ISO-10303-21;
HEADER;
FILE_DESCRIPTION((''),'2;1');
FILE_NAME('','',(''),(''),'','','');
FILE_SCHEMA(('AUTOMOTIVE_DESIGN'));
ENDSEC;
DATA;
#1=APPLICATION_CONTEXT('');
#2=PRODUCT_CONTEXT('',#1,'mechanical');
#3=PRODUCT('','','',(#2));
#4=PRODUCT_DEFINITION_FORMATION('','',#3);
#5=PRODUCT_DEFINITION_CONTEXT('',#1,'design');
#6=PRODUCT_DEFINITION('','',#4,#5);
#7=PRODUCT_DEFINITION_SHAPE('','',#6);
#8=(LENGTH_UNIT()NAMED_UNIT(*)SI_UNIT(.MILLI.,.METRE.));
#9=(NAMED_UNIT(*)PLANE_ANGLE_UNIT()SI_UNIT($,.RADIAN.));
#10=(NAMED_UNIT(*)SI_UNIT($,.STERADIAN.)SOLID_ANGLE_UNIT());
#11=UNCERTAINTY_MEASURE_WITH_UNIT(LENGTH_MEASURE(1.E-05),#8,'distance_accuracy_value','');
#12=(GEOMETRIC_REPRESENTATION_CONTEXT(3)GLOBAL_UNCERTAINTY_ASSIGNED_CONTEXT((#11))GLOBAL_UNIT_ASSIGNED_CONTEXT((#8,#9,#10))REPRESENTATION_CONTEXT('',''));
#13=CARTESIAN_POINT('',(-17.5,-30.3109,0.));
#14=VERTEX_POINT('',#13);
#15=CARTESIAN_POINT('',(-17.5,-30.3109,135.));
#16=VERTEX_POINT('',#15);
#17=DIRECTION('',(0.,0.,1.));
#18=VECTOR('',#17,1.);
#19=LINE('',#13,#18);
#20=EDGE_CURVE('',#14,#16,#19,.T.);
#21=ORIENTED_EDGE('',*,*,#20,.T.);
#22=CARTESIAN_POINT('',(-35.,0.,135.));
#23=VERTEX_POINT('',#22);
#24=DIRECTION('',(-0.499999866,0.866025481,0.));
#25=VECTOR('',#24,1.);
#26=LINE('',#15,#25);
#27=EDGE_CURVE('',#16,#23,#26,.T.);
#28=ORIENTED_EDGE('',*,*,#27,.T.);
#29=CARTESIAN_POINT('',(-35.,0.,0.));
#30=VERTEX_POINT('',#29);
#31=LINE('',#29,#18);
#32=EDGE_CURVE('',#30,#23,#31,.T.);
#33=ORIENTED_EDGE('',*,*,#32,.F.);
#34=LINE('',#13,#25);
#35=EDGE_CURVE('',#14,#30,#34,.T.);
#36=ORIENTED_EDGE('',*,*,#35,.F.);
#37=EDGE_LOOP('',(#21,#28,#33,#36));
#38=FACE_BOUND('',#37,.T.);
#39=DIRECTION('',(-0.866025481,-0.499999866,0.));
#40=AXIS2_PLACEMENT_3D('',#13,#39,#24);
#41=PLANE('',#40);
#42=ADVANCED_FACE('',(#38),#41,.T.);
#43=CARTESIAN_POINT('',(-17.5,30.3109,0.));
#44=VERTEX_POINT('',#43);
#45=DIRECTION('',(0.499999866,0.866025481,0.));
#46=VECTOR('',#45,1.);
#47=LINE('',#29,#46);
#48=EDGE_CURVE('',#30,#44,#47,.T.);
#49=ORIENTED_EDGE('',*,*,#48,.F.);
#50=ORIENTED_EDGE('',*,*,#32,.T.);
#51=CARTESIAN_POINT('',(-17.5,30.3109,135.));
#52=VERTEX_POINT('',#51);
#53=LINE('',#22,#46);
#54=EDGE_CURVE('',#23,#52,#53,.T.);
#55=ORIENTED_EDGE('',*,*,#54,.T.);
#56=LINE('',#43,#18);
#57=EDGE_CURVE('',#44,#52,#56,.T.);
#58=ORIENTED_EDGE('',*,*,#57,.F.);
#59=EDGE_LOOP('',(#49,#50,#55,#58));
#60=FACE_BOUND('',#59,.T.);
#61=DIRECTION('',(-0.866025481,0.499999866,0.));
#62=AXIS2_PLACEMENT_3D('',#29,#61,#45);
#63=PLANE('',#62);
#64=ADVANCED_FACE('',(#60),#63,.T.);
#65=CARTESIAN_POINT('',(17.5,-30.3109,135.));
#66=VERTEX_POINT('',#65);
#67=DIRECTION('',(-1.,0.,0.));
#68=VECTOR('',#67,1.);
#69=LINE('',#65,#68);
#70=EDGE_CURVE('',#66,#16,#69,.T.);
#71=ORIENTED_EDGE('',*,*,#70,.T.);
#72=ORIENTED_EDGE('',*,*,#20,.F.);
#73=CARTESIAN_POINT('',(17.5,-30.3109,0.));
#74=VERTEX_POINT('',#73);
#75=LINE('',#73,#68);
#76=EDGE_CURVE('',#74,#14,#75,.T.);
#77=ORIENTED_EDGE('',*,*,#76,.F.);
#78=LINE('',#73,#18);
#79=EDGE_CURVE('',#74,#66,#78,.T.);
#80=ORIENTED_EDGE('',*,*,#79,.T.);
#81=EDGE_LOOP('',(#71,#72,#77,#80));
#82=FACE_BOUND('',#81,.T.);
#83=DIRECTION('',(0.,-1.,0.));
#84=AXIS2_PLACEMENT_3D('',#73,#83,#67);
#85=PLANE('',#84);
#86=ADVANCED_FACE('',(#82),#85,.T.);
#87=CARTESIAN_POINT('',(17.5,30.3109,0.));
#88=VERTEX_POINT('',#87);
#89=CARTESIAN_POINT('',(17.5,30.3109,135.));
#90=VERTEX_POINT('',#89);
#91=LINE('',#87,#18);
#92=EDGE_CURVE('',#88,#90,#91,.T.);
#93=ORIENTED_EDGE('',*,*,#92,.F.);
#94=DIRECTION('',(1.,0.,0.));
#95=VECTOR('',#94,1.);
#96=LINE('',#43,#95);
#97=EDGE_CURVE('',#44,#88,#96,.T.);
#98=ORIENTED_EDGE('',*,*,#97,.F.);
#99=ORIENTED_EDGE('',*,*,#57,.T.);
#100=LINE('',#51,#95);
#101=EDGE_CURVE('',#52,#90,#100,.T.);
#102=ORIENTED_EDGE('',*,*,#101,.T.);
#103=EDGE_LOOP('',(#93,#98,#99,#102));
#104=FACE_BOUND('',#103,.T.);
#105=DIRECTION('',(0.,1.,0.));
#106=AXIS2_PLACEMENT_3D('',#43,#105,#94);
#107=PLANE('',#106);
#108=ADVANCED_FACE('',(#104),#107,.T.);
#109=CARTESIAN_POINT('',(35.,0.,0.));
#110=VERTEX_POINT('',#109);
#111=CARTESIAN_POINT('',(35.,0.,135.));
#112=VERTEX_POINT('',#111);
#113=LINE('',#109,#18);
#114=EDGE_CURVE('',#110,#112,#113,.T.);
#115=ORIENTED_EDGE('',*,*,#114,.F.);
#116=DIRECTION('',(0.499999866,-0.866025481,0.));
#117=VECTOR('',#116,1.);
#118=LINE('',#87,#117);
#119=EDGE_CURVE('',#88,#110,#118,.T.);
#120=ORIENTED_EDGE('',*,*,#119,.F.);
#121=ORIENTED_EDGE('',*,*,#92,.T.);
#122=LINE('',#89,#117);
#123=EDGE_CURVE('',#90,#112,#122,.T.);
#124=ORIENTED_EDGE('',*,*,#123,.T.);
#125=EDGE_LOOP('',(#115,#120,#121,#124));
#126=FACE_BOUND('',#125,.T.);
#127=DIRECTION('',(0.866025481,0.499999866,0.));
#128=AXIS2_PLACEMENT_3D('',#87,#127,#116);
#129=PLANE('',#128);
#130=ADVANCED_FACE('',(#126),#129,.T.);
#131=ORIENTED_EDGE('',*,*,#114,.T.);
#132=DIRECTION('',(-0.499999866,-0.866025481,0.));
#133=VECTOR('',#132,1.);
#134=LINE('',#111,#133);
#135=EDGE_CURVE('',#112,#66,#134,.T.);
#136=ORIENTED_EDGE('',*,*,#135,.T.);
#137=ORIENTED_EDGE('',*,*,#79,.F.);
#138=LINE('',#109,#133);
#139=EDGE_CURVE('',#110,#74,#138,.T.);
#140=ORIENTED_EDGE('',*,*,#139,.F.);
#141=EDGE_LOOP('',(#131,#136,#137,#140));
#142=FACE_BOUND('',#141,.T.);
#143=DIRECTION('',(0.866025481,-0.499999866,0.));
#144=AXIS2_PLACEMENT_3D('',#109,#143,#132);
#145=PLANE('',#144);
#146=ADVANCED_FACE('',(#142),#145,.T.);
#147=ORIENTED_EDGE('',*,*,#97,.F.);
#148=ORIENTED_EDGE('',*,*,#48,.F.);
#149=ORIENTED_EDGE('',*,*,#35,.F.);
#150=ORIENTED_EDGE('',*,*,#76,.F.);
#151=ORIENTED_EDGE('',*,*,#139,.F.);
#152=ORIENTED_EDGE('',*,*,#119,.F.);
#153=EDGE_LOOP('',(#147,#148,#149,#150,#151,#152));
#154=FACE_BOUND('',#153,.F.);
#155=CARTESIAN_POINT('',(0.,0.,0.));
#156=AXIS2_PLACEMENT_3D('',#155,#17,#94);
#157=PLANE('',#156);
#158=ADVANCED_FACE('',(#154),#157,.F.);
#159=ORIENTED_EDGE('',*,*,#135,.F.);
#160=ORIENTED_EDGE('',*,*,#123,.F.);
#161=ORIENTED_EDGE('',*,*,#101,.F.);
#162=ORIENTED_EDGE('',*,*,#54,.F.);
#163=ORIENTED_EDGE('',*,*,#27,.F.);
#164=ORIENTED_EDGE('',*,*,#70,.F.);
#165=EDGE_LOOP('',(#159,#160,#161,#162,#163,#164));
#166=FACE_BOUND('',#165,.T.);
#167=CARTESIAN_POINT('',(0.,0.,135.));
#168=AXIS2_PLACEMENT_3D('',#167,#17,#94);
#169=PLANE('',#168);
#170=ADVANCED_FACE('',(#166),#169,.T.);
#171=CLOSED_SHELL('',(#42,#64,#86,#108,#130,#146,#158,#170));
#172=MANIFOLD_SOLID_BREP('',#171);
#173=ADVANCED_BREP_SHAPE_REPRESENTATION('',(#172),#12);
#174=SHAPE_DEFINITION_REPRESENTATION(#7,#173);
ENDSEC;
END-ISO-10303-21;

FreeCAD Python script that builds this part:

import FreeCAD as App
import Part
import Sketcher
from FreeCAD import Vector
Q = App.Units.Quantity

doc = App.newDocument("Part")
params = doc.addObject("Spreadsheet::Sheet", "Params")
for row, (alias, value) in enumerate([
    ("sketch1_width", "35 mm"),
    ("sketch1_length", "35 mm"),
    ("pad1_length", "135 mm"),
], start=1):
    params.set(f"A{row}", alias)
    params.set(f"B{row}", "=" + value)
    params.setAlias(f"B{row}", alias)

body = doc.addObject("PartDesign::Body", "Body")

# Sketch on XY plane
sketch1 = doc.addObject("Sketcher::SketchObject", "Sketch")
body.addObject(sketch1)
sketch1.AttachmentSupport = (doc.XY_Plane, [""])
sketch1.MapMode = "FlatFace"
sketch1.addGeometry(Part.LineSegment(Vector(18, -30, 0), Vector(35, 0, 0)), False)
sketch1.addGeometry(Part.LineSegment(Vector(35, 0, 0), Vector(18, 30, 0)), False)
sketch1.addGeometry(Part.LineSegment(Vector(18, 30, 0), Vector(-18, 30, 0)), False)
sketch1.addGeometry(Part.LineSegment(Vector(-18, 30, 0), Vector(-35, 0, 0)), False)
sketch1.addGeometry(Part.LineSegment(Vector(-35, 0, 0), Vector(-18, -30, 0)), False)
sketch1.addGeometry(Part.LineSegment(Vector(-18, -30, 0), Vector(18, -30, 0)), False)
sketch1.addConstraint(Sketcher.Constraint("Coincident", 0, 2, 1, 1))
sketch1.addConstraint(Sketcher.Constraint("Coincident", 1, 2, 2, 1))
sketch1.addConstraint(Sketcher.Constraint("Coincident", 2, 2, 3, 1))
sketch1.addConstraint(Sketcher.Constraint("Coincident", 3, 2, 4, 1))
sketch1.addConstraint(Sketcher.Constraint("Coincident", 4, 2, 5, 1))
sketch1.addConstraint(Sketcher.Constraint("Coincident", 5, 2, 0, 1))
sketch1.addConstraint(Sketcher.Constraint("Horizontal", 2))
sketch1.addConstraint(Sketcher.Constraint("Horizontal", 5))
sketch1.addConstraint(Sketcher.Constraint("Symmetric", 0, 2, 3, 2, -1, 1))
sketch1.addConstraint(Sketcher.Constraint("Symmetric", 1, 2, 4, 2, -1, 1))
sketch1.addConstraint(Sketcher.Constraint("PointOnObject", 0, 2, -1))
sketch1.addConstraint(Sketcher.Constraint("Parallel", 0, 3))
sketch1.addConstraint(Sketcher.Constraint("Vertical", 2, 2, 4, 2))
sketch1.addConstraint(Sketcher.Constraint("DistanceX", 2, 2, 2, 1, Q("35 mm")))
sketch1.addConstraint(Sketcher.Constraint("Distance", 0, Q("35 mm")))
sketch1.addConstraint(Sketcher.Constraint("DistanceX", -1, 1, 0, 2, Q("35 mm")))
sketch1.setExpression("Constraints[13]", "Params.sketch1_width")
sketch1.setExpression("Constraints[14]", "Params.sketch1_length")
pad1 = doc.addObject("PartDesign::Pad", "Pad")
body.addObject(pad1)
pad1.Profile = sketch1
pad1.setExpression("Length", "Params.pad1_length")

doc.recompute()
